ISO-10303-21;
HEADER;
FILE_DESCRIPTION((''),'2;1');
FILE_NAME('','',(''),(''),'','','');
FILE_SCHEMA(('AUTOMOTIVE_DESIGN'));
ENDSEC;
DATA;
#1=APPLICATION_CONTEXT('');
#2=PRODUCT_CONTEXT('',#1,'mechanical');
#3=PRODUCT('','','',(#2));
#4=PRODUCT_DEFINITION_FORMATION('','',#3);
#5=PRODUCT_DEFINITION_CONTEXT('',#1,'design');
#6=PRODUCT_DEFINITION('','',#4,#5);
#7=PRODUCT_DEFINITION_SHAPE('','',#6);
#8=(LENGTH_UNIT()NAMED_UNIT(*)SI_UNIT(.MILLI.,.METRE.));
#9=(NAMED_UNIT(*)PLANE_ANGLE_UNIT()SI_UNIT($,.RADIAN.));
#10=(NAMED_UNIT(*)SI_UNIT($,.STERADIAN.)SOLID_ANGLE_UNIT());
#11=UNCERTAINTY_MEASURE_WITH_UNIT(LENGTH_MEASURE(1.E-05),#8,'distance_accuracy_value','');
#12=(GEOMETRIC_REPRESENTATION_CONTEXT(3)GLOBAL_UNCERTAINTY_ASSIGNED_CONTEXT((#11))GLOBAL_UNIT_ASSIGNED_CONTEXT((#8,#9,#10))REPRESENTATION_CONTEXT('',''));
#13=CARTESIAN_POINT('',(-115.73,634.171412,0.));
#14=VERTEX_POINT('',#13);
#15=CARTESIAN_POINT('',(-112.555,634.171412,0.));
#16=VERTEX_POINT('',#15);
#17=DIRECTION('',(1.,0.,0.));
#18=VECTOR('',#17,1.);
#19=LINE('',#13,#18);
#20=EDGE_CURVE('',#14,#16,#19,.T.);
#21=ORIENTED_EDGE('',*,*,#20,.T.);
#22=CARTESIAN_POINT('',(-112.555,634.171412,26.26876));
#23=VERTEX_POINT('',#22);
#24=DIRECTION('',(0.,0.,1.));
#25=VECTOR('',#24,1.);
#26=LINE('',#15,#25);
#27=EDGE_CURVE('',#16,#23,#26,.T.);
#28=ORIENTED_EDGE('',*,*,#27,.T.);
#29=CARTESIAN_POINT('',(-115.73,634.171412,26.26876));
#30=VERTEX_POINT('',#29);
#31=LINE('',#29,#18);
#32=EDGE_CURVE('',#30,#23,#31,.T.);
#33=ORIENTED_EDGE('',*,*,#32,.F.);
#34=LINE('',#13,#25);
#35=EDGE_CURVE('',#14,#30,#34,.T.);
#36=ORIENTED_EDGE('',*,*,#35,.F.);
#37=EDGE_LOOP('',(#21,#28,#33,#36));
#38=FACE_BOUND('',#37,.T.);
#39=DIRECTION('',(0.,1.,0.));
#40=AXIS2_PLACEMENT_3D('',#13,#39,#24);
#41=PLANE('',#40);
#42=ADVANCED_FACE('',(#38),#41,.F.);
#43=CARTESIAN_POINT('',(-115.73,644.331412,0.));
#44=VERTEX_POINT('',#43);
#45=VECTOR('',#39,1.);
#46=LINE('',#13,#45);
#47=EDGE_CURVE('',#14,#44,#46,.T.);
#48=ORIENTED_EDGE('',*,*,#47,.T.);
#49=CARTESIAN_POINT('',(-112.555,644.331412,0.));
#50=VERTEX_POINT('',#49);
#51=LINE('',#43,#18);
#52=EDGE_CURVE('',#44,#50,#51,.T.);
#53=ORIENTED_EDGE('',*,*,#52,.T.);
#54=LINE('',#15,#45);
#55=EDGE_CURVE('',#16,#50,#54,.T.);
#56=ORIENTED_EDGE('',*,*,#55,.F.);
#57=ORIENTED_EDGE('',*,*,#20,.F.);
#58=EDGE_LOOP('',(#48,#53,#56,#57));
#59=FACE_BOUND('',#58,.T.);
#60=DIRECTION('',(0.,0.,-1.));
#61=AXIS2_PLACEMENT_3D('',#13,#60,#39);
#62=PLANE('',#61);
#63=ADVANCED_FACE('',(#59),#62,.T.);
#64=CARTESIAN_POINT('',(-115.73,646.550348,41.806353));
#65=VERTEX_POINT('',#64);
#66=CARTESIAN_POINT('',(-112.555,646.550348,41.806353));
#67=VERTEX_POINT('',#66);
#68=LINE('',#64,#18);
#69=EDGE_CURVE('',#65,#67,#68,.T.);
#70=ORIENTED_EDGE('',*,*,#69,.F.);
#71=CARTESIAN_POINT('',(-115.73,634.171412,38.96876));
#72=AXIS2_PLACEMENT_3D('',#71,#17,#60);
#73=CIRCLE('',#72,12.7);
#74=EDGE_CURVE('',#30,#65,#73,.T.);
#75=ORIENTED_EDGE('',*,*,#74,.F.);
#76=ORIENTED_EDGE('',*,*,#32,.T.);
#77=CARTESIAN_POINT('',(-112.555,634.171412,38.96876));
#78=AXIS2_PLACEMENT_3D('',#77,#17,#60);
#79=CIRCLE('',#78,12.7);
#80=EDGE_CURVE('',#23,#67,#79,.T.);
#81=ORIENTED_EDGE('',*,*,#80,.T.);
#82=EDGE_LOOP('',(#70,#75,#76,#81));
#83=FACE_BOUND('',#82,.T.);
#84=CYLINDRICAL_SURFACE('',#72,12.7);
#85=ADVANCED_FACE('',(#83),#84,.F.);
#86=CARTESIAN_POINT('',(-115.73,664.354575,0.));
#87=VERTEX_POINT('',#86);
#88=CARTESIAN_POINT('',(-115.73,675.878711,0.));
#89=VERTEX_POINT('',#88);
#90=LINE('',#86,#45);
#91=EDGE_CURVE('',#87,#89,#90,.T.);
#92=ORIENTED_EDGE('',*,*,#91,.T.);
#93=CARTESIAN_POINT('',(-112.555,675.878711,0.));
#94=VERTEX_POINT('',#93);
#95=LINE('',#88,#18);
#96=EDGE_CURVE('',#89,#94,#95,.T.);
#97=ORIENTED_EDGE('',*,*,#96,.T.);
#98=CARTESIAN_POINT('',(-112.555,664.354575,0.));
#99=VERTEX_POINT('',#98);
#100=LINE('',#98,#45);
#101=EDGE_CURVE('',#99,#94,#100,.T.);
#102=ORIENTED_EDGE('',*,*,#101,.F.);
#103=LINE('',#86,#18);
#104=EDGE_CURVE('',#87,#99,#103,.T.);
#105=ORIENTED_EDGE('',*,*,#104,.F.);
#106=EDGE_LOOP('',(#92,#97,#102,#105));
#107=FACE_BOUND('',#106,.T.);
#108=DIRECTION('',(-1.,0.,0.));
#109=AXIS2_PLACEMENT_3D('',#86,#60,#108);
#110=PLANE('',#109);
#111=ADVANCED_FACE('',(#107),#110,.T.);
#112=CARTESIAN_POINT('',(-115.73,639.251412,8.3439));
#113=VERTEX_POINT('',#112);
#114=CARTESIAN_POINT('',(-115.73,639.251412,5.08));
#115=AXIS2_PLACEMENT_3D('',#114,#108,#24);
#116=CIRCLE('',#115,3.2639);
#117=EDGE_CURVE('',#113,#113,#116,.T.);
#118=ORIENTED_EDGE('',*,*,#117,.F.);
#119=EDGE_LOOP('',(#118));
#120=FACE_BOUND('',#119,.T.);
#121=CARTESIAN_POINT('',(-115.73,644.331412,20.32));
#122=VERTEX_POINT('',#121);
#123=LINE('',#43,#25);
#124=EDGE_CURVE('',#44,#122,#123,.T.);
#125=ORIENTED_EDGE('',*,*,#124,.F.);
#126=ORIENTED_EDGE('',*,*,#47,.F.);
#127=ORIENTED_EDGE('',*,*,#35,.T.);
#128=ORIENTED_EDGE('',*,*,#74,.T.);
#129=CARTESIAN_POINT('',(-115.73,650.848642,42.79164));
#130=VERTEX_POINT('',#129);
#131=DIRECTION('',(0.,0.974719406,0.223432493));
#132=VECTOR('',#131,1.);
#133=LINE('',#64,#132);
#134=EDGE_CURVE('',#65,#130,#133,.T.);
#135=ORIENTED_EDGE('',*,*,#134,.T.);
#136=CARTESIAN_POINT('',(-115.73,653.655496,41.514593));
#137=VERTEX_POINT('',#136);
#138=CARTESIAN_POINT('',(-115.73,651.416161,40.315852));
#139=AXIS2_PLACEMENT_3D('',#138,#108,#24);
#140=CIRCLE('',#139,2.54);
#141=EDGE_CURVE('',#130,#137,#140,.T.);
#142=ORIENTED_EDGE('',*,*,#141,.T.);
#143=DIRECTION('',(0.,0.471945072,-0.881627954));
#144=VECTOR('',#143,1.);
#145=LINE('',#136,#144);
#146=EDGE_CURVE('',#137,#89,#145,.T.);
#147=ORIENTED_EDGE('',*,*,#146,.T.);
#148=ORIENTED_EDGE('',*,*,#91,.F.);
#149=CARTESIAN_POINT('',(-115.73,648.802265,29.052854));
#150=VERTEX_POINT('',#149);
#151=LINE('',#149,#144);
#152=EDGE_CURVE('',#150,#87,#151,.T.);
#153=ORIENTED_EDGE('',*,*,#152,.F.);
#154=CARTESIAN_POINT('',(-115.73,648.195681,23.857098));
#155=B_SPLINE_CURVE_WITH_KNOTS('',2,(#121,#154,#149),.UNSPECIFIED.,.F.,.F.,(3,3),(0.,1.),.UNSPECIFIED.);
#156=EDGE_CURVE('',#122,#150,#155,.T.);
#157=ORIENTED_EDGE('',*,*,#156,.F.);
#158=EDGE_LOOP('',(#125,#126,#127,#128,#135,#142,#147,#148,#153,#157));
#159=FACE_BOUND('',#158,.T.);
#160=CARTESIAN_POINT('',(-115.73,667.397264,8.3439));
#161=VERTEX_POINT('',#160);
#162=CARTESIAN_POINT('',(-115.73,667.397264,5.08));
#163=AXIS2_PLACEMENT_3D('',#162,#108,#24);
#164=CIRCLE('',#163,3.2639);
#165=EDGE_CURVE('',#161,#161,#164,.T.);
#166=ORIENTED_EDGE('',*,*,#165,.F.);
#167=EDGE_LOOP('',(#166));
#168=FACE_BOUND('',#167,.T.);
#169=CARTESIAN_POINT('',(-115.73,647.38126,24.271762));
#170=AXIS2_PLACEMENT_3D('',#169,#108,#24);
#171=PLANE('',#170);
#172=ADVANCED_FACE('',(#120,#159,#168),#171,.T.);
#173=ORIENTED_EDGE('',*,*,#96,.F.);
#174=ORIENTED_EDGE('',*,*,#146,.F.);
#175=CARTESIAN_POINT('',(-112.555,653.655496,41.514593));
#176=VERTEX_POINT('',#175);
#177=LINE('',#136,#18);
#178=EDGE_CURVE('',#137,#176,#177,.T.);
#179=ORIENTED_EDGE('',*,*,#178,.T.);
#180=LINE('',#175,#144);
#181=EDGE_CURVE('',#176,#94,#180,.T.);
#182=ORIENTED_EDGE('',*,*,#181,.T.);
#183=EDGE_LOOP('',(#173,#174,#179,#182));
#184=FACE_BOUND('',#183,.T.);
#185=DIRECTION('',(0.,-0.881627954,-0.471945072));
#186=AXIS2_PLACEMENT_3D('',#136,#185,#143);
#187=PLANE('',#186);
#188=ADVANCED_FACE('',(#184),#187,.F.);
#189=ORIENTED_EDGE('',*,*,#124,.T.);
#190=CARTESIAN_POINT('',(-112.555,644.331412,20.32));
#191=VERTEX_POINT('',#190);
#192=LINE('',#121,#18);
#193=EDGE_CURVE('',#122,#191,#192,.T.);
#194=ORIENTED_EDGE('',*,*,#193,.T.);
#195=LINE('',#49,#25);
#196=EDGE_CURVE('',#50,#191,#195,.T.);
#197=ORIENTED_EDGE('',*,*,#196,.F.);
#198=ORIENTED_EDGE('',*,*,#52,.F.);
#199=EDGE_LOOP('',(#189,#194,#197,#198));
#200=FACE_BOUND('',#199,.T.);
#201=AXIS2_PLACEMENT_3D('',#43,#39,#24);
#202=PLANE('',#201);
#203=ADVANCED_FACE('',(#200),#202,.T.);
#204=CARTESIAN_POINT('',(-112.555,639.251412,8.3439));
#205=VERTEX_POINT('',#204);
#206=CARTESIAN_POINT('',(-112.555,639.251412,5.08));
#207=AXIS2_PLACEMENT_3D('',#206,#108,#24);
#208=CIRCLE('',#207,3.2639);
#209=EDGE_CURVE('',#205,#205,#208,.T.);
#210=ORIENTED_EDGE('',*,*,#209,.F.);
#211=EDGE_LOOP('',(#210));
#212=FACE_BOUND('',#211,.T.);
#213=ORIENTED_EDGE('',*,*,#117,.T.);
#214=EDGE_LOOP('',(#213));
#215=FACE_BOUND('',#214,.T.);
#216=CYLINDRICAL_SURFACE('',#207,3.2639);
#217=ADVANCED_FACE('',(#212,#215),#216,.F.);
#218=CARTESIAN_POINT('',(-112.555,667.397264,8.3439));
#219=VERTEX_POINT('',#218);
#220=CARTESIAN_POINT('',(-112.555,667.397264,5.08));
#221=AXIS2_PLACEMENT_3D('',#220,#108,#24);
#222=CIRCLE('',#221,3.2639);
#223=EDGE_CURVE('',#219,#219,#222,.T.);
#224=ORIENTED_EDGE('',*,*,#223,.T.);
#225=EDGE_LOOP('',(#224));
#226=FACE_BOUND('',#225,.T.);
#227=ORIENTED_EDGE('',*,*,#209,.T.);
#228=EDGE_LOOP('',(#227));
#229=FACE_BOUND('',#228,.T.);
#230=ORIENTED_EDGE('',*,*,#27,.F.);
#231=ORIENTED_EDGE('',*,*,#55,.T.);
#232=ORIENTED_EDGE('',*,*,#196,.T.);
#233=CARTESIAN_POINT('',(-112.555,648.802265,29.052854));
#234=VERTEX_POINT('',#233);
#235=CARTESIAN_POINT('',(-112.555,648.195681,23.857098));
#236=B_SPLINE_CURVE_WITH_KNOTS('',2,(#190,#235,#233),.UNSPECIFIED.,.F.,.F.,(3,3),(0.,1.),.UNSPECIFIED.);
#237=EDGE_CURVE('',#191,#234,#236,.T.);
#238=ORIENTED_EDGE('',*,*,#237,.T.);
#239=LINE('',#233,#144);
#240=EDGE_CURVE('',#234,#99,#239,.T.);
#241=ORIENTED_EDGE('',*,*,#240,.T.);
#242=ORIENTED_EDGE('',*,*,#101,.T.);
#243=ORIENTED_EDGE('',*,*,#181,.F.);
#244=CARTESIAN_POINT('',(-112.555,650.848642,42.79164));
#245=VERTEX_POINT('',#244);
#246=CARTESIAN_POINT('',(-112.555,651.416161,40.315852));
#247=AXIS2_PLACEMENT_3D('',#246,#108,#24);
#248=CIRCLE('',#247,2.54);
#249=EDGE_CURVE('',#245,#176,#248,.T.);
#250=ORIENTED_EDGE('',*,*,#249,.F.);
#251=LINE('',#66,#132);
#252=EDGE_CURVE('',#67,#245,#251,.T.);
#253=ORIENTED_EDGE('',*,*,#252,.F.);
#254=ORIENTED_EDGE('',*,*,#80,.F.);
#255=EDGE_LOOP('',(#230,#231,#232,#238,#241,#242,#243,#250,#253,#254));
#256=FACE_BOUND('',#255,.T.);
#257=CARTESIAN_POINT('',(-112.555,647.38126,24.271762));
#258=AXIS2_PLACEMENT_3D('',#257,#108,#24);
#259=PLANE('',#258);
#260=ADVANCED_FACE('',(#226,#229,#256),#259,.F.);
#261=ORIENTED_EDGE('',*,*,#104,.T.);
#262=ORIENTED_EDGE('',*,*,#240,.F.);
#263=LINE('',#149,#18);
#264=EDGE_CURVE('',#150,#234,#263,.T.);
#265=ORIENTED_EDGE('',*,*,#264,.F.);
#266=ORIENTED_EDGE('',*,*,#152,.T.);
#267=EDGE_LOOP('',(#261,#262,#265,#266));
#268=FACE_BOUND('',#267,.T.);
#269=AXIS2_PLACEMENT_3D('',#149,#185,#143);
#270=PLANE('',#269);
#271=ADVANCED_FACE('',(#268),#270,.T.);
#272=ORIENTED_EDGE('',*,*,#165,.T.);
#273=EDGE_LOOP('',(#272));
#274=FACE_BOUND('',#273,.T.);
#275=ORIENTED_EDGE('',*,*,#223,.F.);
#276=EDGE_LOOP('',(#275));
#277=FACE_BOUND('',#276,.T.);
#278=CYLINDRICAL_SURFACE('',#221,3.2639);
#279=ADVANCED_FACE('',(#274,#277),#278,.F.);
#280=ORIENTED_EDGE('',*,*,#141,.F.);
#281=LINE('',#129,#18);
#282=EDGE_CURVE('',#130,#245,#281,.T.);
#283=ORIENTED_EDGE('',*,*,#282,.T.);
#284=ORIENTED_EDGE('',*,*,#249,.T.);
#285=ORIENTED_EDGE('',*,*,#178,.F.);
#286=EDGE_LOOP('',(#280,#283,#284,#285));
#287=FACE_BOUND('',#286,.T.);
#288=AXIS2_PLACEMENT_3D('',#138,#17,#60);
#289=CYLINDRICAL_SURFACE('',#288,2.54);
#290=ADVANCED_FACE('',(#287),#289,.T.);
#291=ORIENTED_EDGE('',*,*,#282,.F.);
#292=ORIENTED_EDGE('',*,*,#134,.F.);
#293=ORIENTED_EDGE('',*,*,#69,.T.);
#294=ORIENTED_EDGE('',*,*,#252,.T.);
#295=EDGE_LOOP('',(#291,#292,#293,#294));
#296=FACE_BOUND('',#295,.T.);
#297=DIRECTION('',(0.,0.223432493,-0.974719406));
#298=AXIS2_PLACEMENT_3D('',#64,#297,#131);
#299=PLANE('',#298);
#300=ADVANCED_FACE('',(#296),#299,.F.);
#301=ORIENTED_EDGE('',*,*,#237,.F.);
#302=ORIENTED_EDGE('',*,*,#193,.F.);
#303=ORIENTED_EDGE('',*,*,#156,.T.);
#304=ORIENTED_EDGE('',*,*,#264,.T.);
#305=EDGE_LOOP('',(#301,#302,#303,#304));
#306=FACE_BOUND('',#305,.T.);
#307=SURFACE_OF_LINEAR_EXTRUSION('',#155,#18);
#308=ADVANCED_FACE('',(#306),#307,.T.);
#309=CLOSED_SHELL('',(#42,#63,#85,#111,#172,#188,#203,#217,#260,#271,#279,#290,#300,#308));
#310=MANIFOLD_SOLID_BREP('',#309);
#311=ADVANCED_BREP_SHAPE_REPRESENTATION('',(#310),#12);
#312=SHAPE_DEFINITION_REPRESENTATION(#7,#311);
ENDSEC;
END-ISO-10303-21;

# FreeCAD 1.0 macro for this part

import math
import FreeCAD as App
import Part
import Sketcher
from FreeCAD import Vector
Q = App.Units.Quantity

doc = App.newDocument("Part")
params = doc.addObject("Spreadsheet::Sheet", "Params")
for row, (alias, value) in enumerate([
    ("sketch1_radius", "0.5 in"),
    ("sketch1_radius2", "0.1 in"),
    ("sketch1_width", "0.4 in"),
    ("pad1_length", "0.125 in"),
    ("sketch2_diameter", "0.257 in"),
], start=1):
    params.set(f"A{row}", alias)
    params.set(f"B{row}", "=" + value)
    params.setAlias(f"B{row}", alias)

body = doc.addObject("PartDesign::Body", "Body")

# Sketch on YZ plane
sketch1 = doc.addObject("Sketcher::SketchObject", "Sketch")
body.addObject(sketch1)
sketch1.AttachmentSupport = (doc.YZ_Plane, [""])
sketch1.MapMode = "FlatFace"
sketch1.AttachmentOffset = App.Placement(Vector(0, 0, -112.555), App.Rotation())
sketch1.addGeometry(Part.LineSegment(Vector(634.171412, 0, 0), Vector(634.171412, 26.26876, 0)), False)
sketch1.addGeometry(Part.ArcOfCircle(Part.Circle(Vector(634.171412, 38.96876, 0), Vector(0, 0, 1), 12.7), math.radians(-90), math.radians(12.91072)), False)
sketch1.addGeometry(Part.LineSegment(Vector(646.550348, 41.806353, 0), Vector(650.848642, 42.79164, 0)), False)
sketch1.addGeometry(Part.ArcOfCircle(Part.Circle(Vector(651.416161, 40.315852, 0), Vector(0, 0, 1), 2.54), math.radians(28.16063), math.radians(102.91072)), False)
sketch1.addGeometry(Part.LineSegment(Vector(653.655496, 41.514593, 0), Vector(675.878711, 0, 0)), False)
sketch1.addGeometry(Part.LineSegment(Vector(675.878711, 0, 0), Vector(664.354575, 0, 0)), False)
sketch1.addGeometry(Part.LineSegment(Vector(664.354575, 0, 0), Vector(648.802265, 29.052854, 0)), False)
sketch1.addGeometry(Part.BSplineCurve([Vector(644.331412, 20.32, 0), Vector(648.195681, 23.857098, 0), Vector(648.802265, 29.052854, 0)], [3, 3], [0, 1], False, 2, [1, 1, 1], False), False)
sketch1.addGeometry(Part.LineSegment(Vector(644.331412, 20.32, 0), Vector(644.331412, 0, 0)), False)
sketch1.addGeometry(Part.LineSegment(Vector(644.331412, 0, 0), Vector(634.171412, 0, 0)), False)
sketch1.addConstraint(Sketcher.Constraint("Block", 7))
sketch1.addConstraint(Sketcher.Constraint("Coincident", 0, 2, 1, 1))
sketch1.addConstraint(Sketcher.Constraint("Coincident", 1, 2, 2, 1))
sketch1.addConstraint(Sketcher.Constraint("Coincident", 2, 2, 3, 2))
sketch1.addConstraint(Sketcher.Constraint("Coincident", 3, 1, 4, 1))
sketch1.addConstraint(Sketcher.Constraint("Coincident", 4, 2, 5, 1))
sketch1.addConstraint(Sketcher.Constraint("Coincident", 5, 2, 6, 1))
sketch1.addConstraint(Sketcher.Constraint("Coincident", 6, 2, 7, 2))
sketch1.addConstraint(Sketcher.Constraint("Coincident", 7, 1, 8, 1))
sketch1.addConstraint(Sketcher.Constraint("Coincident", 8, 2, 9, 1))
sketch1.addConstraint(Sketcher.Constraint("Coincident", 9, 2, 0, 1))
sketch1.addConstraint(Sketcher.Constraint("Vertical", 0))
sketch1.addConstraint(Sketcher.Constraint("Horizontal", 5))
sketch1.addConstraint(Sketcher.Constraint("Vertical", 8))
sketch1.addConstraint(Sketcher.Constraint("Horizontal", 9))
sketch1.addConstraint(Sketcher.Constraint("PointOnObject", 4, 2, -1))
sketch1.addConstraint(Sketcher.Constraint("PointOnObject", 8, 2, -1))
sketch1.addConstraint(Sketcher.Constraint("Radius", 1, Q("0.5 in")))
sketch1.addConstraint(Sketcher.Constraint("Radius", 3, Q("0.1 in")))
sketch1.addConstraint(Sketcher.Constraint("DistanceX", 9, 2, 9, 1, Q("0.4 in")))
sketch1.addConstraint(Sketcher.Constraint("DistanceX", 1, 3, 8, 2, Q("0.4 in")))
sketch1.addConstraint(Sketcher.Constraint("DistanceY", 0, 1, 0, 2, 26.26876))
sketch1.addConstraint(Sketcher.Constraint("DistanceY", 3, 3, 1, 2, 1.4905))
sketch1.addConstraint(Sketcher.Constraint("DistanceX", 0, 2, 4, 2, 41.707299))
sketch1.addConstraint(Sketcher.Constraint("DistanceY", 6, 2, 3, 3, 11.262998))
sketch1.addConstraint(Sketcher.Constraint("DistanceX", 5, 2, 5, 1, 11.524136))
sketch1.addConstraint(Sketcher.Constraint("DistanceX", -1, 1, 3, 3, 651.416161))
sketch1.addConstraint(Sketcher.Constraint("DistanceY", -1, 1, 2, 2, 42.79164))
sketch1.addConstraint(Sketcher.Constraint("DistanceY", 3, 3, 3, 1, 1.19874))
sketch1.setExpression("Constraints[17]", "Params.sketch1_radius")
sketch1.setExpression("Constraints[18]", "Params.sketch1_radius2")
sketch1.setExpression("Constraints[19]", "Params.sketch1_width")
pad1 = doc.addObject("PartDesign::Pad", "Pad")
body.addObject(pad1)
pad1.Profile = sketch1
pad1.setExpression("Length", "Params.pad1_length")
pad1.Reversed = True

# Sketch on YZ plane
sketch2 = doc.addObject("Sketcher::SketchObject", "Sketch001")
body.addObject(sketch2)
sketch2.AttachmentSupport = (doc.YZ_Plane, [""])
sketch2.MapMode = "FlatFace"
sketch2.AttachmentOffset = App.Placement(Vector(0, 0, -115.73), App.Rotation())
sketch2.addGeometry(Part.Circle(Vector(639.251412, 5.08, 0), Vector(0, 0, 1), 3.2639), False)
sketch2.addGeometry(Part.Circle(Vector(667.397264, 5.08, 0), Vector(0, 0, 1), 3.2639), False)
sketch2.addConstraint(Sketcher.Constraint("Equal", 0, 1))
sketch2.addConstraint(Sketcher.Constraint("Horizontal", 0, 3, 1, 3))
sketch2.addConstraint(Sketcher.Constraint("Diameter", 0, Q("0.257 in")))
sketch2.addConstraint(Sketcher.Constraint("DistanceY", -1, 1, 0, 3, Q("0.2 in")))
sketch2.addConstraint(Sketcher.Constraint("DistanceX", -1, 1, 0, 3, 639.251412))
sketch2.addConstraint(Sketcher.Constraint("DistanceX", 0, 3, 1, 3, 28.145852))
sketch2.setExpression("Constraints[2]", "Params.sketch2_diameter")
pocket1 = doc.addObject("PartDesign::Pocket", "Pocket")
body.addObject(pocket1)
pocket1.Profile = sketch2
pocket1.Type = "ThroughAll"
pocket1.Reversed = True

doc.recompute()
